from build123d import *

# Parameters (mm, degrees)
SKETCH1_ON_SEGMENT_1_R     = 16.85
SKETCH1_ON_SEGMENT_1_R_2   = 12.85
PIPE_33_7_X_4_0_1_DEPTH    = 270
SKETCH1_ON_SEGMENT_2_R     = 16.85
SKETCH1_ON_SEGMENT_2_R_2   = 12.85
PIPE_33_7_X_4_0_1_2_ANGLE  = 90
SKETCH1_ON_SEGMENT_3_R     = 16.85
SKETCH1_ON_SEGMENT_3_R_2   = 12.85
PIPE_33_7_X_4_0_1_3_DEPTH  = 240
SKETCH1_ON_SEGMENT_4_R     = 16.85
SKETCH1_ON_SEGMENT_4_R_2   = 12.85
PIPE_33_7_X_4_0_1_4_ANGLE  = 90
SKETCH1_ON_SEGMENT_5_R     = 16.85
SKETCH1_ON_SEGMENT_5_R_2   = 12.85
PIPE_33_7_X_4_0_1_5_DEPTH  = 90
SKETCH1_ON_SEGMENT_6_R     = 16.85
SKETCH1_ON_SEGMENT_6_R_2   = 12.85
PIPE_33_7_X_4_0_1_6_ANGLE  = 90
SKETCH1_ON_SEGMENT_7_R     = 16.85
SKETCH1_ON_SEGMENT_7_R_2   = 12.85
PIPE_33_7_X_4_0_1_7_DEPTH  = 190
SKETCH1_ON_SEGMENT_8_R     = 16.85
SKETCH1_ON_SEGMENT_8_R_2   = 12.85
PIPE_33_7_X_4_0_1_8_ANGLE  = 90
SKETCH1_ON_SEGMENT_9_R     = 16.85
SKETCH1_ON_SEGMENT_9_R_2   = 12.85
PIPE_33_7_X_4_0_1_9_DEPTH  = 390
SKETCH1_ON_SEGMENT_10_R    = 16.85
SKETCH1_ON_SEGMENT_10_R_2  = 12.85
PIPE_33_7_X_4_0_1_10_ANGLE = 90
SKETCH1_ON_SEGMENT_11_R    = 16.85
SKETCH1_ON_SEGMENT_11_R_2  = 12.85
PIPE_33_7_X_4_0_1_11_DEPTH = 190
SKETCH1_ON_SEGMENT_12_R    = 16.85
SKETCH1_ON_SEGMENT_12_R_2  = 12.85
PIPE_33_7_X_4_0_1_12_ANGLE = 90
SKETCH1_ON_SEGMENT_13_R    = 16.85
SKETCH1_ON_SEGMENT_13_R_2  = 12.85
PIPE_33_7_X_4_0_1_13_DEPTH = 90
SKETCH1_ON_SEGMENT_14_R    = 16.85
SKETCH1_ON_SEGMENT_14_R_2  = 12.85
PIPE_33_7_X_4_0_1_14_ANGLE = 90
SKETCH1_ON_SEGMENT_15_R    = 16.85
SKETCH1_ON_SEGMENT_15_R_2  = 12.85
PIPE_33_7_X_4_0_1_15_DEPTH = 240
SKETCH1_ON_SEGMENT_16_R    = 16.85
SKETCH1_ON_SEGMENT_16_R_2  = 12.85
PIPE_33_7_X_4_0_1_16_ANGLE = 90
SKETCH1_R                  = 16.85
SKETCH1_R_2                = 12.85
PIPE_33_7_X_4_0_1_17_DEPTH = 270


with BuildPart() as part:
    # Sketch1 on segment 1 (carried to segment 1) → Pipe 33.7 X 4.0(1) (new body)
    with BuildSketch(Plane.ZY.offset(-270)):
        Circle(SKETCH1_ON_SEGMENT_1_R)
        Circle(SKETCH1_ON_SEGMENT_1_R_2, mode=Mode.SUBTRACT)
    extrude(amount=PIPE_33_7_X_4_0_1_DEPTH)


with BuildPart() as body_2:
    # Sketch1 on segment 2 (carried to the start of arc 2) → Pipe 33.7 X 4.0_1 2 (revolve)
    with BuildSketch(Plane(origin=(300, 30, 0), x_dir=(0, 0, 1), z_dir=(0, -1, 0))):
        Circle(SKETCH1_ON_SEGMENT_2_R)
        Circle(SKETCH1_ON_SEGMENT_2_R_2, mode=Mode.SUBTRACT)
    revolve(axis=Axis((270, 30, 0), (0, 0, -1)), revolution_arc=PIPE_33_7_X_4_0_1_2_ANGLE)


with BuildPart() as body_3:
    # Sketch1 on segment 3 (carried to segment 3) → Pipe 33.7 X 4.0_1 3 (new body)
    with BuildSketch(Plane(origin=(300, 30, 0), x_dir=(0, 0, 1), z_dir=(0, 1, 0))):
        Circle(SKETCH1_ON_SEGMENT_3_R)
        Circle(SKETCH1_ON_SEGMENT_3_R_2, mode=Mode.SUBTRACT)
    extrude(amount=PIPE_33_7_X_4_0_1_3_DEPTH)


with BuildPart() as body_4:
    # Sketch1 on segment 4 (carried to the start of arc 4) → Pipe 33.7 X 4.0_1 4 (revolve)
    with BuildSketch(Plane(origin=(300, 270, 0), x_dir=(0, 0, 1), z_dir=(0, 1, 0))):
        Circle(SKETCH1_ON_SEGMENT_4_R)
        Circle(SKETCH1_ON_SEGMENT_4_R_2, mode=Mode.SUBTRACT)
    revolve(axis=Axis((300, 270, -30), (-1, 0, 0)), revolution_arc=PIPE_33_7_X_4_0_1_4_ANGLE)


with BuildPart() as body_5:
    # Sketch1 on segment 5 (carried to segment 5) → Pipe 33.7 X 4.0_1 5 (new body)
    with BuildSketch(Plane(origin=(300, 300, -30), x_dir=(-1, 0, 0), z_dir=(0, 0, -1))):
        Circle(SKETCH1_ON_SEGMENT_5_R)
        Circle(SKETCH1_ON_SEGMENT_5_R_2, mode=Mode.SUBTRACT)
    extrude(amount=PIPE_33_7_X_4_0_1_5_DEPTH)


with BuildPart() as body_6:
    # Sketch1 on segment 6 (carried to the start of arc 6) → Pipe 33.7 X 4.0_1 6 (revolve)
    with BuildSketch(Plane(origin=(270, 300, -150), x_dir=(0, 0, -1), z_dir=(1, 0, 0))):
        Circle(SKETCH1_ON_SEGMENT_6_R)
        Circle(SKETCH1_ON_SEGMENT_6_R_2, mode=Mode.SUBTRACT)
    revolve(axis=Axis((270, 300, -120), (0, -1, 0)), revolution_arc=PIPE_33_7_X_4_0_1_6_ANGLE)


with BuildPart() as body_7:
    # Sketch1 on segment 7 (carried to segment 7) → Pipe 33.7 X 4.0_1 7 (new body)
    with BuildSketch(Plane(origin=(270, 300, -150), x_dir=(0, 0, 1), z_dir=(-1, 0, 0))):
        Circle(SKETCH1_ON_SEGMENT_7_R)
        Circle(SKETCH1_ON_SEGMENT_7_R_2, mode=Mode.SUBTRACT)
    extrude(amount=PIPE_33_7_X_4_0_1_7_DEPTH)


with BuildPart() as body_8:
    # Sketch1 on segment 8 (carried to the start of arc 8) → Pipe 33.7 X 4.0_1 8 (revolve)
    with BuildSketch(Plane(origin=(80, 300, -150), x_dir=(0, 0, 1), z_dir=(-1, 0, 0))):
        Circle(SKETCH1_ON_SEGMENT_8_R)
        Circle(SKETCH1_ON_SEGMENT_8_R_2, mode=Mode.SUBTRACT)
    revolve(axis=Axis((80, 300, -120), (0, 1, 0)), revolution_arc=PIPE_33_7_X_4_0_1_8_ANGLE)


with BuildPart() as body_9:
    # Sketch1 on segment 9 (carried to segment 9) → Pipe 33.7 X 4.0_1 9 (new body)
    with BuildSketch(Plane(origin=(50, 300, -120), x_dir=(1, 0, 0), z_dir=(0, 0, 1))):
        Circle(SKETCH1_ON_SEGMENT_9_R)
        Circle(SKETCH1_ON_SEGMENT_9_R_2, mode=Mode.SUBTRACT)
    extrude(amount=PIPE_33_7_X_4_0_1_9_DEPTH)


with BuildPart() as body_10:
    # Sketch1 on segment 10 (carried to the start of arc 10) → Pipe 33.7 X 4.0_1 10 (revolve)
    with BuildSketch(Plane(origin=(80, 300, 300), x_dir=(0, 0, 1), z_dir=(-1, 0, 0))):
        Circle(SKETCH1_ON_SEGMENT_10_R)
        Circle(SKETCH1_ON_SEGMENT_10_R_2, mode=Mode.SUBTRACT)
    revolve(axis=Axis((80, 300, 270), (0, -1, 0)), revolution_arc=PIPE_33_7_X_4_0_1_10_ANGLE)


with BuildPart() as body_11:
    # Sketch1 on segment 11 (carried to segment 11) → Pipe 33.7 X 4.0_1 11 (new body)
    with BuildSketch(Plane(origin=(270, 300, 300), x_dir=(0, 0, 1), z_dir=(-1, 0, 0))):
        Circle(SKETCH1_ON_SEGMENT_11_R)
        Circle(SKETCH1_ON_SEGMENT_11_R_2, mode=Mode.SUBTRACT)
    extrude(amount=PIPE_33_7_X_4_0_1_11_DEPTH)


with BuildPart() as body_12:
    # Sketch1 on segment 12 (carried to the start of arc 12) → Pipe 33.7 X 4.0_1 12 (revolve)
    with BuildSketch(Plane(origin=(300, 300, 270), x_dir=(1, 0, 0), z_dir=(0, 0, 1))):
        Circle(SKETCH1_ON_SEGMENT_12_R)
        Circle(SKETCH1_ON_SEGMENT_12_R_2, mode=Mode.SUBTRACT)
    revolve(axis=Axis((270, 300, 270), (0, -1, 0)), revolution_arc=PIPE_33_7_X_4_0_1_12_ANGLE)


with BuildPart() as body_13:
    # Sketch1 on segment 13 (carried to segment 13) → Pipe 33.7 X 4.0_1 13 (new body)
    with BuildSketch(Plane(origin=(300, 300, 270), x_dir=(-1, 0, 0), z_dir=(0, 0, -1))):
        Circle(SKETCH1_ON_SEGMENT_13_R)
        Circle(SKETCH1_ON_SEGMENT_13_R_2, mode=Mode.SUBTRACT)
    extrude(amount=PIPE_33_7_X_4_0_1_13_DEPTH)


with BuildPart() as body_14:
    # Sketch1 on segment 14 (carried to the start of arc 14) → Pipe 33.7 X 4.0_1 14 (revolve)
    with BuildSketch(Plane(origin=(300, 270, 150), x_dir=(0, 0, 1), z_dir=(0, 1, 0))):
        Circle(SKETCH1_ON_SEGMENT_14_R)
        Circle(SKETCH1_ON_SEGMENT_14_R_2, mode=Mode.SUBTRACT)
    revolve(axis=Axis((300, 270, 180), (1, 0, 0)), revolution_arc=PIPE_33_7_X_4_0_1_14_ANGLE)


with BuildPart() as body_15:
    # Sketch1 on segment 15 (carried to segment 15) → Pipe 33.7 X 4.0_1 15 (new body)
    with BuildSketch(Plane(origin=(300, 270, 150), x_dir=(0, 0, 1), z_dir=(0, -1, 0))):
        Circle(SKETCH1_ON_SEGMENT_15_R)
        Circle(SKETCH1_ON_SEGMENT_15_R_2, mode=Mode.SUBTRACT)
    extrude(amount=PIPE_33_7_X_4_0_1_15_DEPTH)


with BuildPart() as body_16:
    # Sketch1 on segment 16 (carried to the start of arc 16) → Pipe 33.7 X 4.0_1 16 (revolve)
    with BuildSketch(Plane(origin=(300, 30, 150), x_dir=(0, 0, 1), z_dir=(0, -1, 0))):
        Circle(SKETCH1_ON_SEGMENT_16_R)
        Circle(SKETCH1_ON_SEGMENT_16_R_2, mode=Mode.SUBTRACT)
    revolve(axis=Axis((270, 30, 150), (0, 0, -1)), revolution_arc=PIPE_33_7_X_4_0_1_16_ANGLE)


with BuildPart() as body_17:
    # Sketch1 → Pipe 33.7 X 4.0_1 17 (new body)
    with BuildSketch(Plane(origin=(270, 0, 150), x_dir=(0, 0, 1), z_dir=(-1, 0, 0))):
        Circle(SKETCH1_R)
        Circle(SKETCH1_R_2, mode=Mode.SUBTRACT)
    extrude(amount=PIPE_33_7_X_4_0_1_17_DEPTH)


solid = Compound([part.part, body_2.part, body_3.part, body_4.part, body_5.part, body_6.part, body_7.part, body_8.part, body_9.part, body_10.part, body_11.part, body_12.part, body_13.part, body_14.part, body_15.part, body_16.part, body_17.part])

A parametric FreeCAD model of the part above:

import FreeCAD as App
import Part
import Sketcher

V = App.Vector
Q = App.Units.Quantity

doc = App.newDocument("Part")
params = doc.addObject("Spreadsheet::Sheet", "Params")
for row, (alias, value) in enumerate([
    ("sketch1_diameter", "33.7 mm"),
    ("sketch1_diameter2", "25.7 mm"),
    ("pad1_length", "270 mm"),
    ("sketch2_diameter", "33.7 mm"),
    ("sketch2_diameter2", "25.7 mm"),
    ("sketch2_height", "10 mm"),
    ("revolution_angle", "90 deg"),
    ("sketch3_diameter", "33.7 mm"),
    ("sketch3_diameter2", "25.7 mm"),
    ("pad2_length", "240 mm"),
    ("sketch4_diameter", "33.7 mm"),
    ("sketch4_diameter2", "25.7 mm"),
    ("sketch4_width", "10 mm"),
    ("revolution2_angle", "90 deg"),
    ("sketch5_diameter", "33.7 mm"),
    ("sketch5_diameter2", "25.7 mm"),
    ("pad3_length", "90 mm"),
    ("sketch6_diameter", "33.7 mm"),
    ("sketch6_diameter2", "25.7 mm"),
    ("sketch6_width", "10 mm"),
    ("revolution3_angle", "90 deg"),
    ("sketch7_diameter", "33.7 mm"),
    ("sketch7_diameter2", "25.7 mm"),
    ("pad4_length", "190 mm"),
    ("sketch8_diameter", "33.7 mm"),
    ("sketch8_diameter2", "25.7 mm"),
    ("sketch8_width", "10 mm"),
    ("revolution4_angle", "90 deg"),
    ("sketch9_diameter", "33.7 mm"),
    ("sketch9_diameter2", "25.7 mm"),
    ("pad5_length", "390 mm"),
    ("sketch10_diameter", "33.7 mm"),
    ("sketch10_diameter2", "25.7 mm"),
    ("sketch10_width", "10 mm"),
    ("revolution5_angle", "90 deg"),
    ("sketch11_diameter", "33.7 mm"),
    ("sketch11_diameter2", "25.7 mm"),
    ("pad6_length", "190 mm"),
    ("sketch12_diameter", "33.7 mm"),
    ("sketch12_diameter2", "25.7 mm"),
    ("sketch12_height", "10 mm"),
    ("revolution6_angle", "90 deg"),
    ("sketch13_diameter", "33.7 mm"),
    ("sketch13_diameter2", "25.7 mm"),
    ("pad7_length", "90 mm"),
    ("sketch14_diameter", "33.7 mm"),
    ("sketch14_diameter2", "25.7 mm"),
    ("sketch14_width", "10 mm"),
    ("revolution7_angle", "90 deg"),
    ("sketch15_diameter", "33.7 mm"),
    ("sketch15_diameter2", "25.7 mm"),
    ("pad8_length", "240 mm"),
    ("sketch16_diameter", "33.7 mm"),
    ("sketch16_diameter2", "25.7 mm"),
    ("sketch16_height", "10 mm"),
    ("revolution8_angle", "90 deg"),
    ("sketch17_diameter", "33.7 mm"),
    ("sketch17_diameter2", "25.7 mm"),
    ("pad9_length", "270 mm"),
], start=1):
    params.set(f"A{row}", alias)
    params.set(f"B{row}", "=" + value)
    params.setAlias(f"B{row}", alias)

body = doc.addObject("PartDesign::Body", "Body")

# Sketch on YZ plane
sketch1 = body.newObject("Sketcher::SketchObject", "Sketch")
sketch1.AttachmentSupport = (doc.getObject("YZ_Plane"), [""])
sketch1.MapMode = "FlatFace"
sketch1.AttachmentOffset = App.Placement(V(0, 0, 270), App.Rotation())
sketch1.addGeometry(Part.Circle(V(0, 0, 0), V(0, 0, 1), 16.85), False)
sketch1.addGeometry(Part.Circle(V(0, 0, 0), V(0, 0, 1), 12.85), False)
sketch1.addConstraint(Sketcher.Constraint("Coincident", 0, 3, -1, 1))
sketch1.addConstraint(Sketcher.Constraint("Coincident", 1, 3, -1, 1))
sketch1.addConstraint(Sketcher.Constraint("Diameter", 0, Q("33.7 mm")))
sketch1.addConstraint(Sketcher.Constraint("Diameter", 1, Q("25.7 mm")))
sketch1.setExpression("Constraints[2]", "Params.sketch1_diameter")
sketch1.setExpression("Constraints[3]", "Params.sketch1_diameter2")
pad1 = body.newObject("PartDesign::Pad", "Pad")
pad1.Profile = sketch1
pad1.setExpression("Length", "Params.pad1_length")
pad1.Reversed = True
body2 = doc.addObject("PartDesign::Body", "Body001")

# Sketch on XZ plane
sketch2 = body2.newObject("Sketcher::SketchObject", "Sketch001")
sketch2.AttachmentSupport = (doc.getObject("XZ_Plane001"), [""])
sketch2.MapMode = "FlatFace"
sketch2.AttachmentOffset = App.Placement(V(0, 0, -30), App.Rotation())
sketch2.addGeometry(Part.Circle(V(300, 0, 0), V(0, 0, 1), 16.85), False)
sketch2.addGeometry(Part.Circle(V(300, 0, 0), V(0, 0, 1), 12.85), False)
sketch2.addGeometry(Part.LineSegment(V(270, 0, 0), V(270, -10, 0)), True)  # axis
sketch2.addConstraint(Sketcher.Constraint("Vertical", 2))
sketch2.addConstraint(Sketcher.Constraint("Coincident", 1, 3, 0, 3))
sketch2.addConstraint(Sketcher.Constraint("PointOnObject", 0, 3, -1))
sketch2.addConstraint(Sketcher.Constraint("PointOnObject", 2, 1, -1))
sketch2.addConstraint(Sketcher.Constraint("Diameter", 0, Q("33.7 mm")))
sketch2.addConstraint(Sketcher.Constraint("Diameter", 1, Q("25.7 mm")))
sketch2.addConstraint(Sketcher.Constraint("DistanceY", 2, 2, 2, 1, Q("10 mm")))
sketch2.addConstraint(Sketcher.Constraint("DistanceX", -1, 1, 0, 3, Q("300 mm")))
sketch2.addConstraint(Sketcher.Constraint("DistanceX", -1, 1, 2, 1, Q("270 mm")))
sketch2.setExpression("Constraints[4]", "Params.sketch2_diameter")
sketch2.setExpression("Constraints[5]", "Params.sketch2_diameter2")
sketch2.setExpression("Constraints[6]", "Params.sketch2_height")
revolution = body2.newObject("PartDesign::Revolution", "Revolution")
revolution.Profile = sketch2
revolution.ReferenceAxis = (sketch2, ["Axis0"])
revolution.setExpression("Angle", "Params.revolution_angle")
body3 = doc.addObject("PartDesign::Body", "Body002")

# Sketch on XZ plane
sketch3 = body3.newObject("Sketcher::SketchObject", "Sketch002")
sketch3.AttachmentSupport = (doc.getObject("XZ_Plane002"), [""])
sketch3.MapMode = "FlatFace"
sketch3.AttachmentOffset = App.Placement(V(0, 0, -30), App.Rotation())
sketch3.addGeometry(Part.Circle(V(300, 0, 0), V(0, 0, 1), 16.85), False)
sketch3.addGeometry(Part.Circle(V(300, 0, 0), V(0, 0, 1), 12.85), False)
sketch3.addConstraint(Sketcher.Constraint("Coincident", 1, 3, 0, 3))
sketch3.addConstraint(Sketcher.Constraint("PointOnObject", 0, 3, -1))
sketch3.addConstraint(Sketcher.Constraint("Diameter", 0, Q("33.7 mm")))
sketch3.addConstraint(Sketcher.Constraint("Diameter", 1, Q("25.7 mm")))
sketch3.addConstraint(Sketcher.Constraint("DistanceX", -1, 1, 0, 3, Q("300 mm")))
sketch3.setExpression("Constraints[2]", "Params.sketch3_diameter")
sketch3.setExpression("Constraints[3]", "Params.sketch3_diameter2")
pad2 = body3.newObject("PartDesign::Pad", "Pad001")
pad2.Profile = sketch3
pad2.setExpression("Length", "Params.pad2_length")
pad2.Reversed = True
body4 = doc.addObject("PartDesign::Body", "Body003")

# Sketch on XZ plane
sketch4 = body4.newObject("Sketcher::SketchObject", "Sketch003")
sketch4.AttachmentSupport = (doc.getObject("XZ_Plane003"), [""])
sketch4.MapMode = "FlatFace"
sketch4.AttachmentOffset = App.Placement(V(0, 0, -270), App.Rotation())
sketch4.addGeometry(Part.Circle(V(300, 0, 0), V(0, 0, 1), 16.85), False)
sketch4.addGeometry(Part.Circle(V(300, 0, 0), V(0, 0, 1), 12.85), False)
sketch4.addGeometry(Part.LineSegment(V(300, -30, 0), V(290, -30, 0)), True)  # axis
sketch4.addConstraint(Sketcher.Constraint("Horizontal", 2))
sketch4.addConstraint(Sketcher.Constraint("Coincident", 1, 3, 0, 3))
sketch4.addConstraint(Sketcher.Constraint("PointOnObject", 0, 3, -1))
sketch4.addConstraint(Sketcher.Constraint("Vertical", 1, 3, 2, 1))
sketch4.addConstraint(Sketcher.Constraint("Diameter", 0, Q("33.7 mm")))
sketch4.addConstraint(Sketcher.Constraint("Diameter", 1, Q("25.7 mm")))
sketch4.addConstraint(Sketcher.Constraint("DistanceX", 2, 2, 2, 1, Q("10 mm")))
sketch4.addConstraint(Sketcher.Constraint("DistanceX", -1, 1, 0, 3, Q("300 mm")))
sketch4.addConstraint(Sketcher.Constraint("DistanceY", 2, 1, -1, 1, Q("30 mm")))
sketch4.setExpression("Constraints[4]", "Params.sketch4_diameter")
sketch4.setExpression("Constraints[5]", "Params.sketch4_diameter2")
sketch4.setExpression("Constraints[6]", "Params.sketch4_width")
revolution2 = body4.newObject("PartDesign::Revolution", "Revolution001")
revolution2.Profile = sketch4
revolution2.ReferenceAxis = (sketch4, ["Axis0"])
revolution2.setExpression("Angle", "Params.revolution2_angle")
body5 = doc.addObject("PartDesign::Body", "Body004")

# Sketch on XY plane
sketch5 = body5.newObject("Sketcher::SketchObject", "Sketch004")
sketch5.AttachmentSupport = (doc.getObject("XY_Plane004"), [""])
sketch5.MapMode = "FlatFace"
sketch5.AttachmentOffset = App.Placement(V(0, 0, -30), App.Rotation())
sketch5.addGeometry(Part.Circle(V(300, 300, 0), V(0, 0, 1), 16.85), False)
sketch5.addGeometry(Part.Circle(V(300, 300, 0), V(0, 0, 1), 12.85), False)
sketch5.addConstraint(Sketcher.Constraint("Coincident", 1, 3, 0, 3))
sketch5.addConstraint(Sketcher.Constraint("Diameter", 0, Q("33.7 mm")))
sketch5.addConstraint(Sketcher.Constraint("Diameter", 1, Q("25.7 mm")))
sketch5.addConstraint(Sketcher.Constraint("DistanceX", -1, 1, 0, 3, Q("300 mm")))
sketch5.addConstraint(Sketcher.Constraint("DistanceY", -1, 1, 0, 3, Q("300 mm")))
sketch5.setExpression("Constraints[1]", "Params.sketch5_diameter")
sketch5.setExpression("Constraints[2]", "Params.sketch5_diameter2")
pad3 = body5.newObject("PartDesign::Pad", "Pad002")
pad3.Profile = sketch5
pad3.setExpression("Length", "Params.pad3_length")
pad3.Reversed = True
body6 = doc.addObject("PartDesign::Body", "Body005")

# Sketch on YZ plane
sketch6 = body6.newObject("Sketcher::SketchObject", "Sketch005")
sketch6.AttachmentSupport = (doc.getObject("YZ_Plane005"), [""])
sketch6.MapMode = "FlatFace"
sketch6.AttachmentOffset = App.Placement(V(0, 0, 270), App.Rotation())
sketch6.addGeometry(Part.Circle(V(300, -150, 0), V(0, 0, 1), 16.85), False)
sketch6.addGeometry(Part.Circle(V(300, -150, 0), V(0, 0, 1), 12.85), False)
sketch6.addGeometry(Part.LineSegment(V(300, -120, 0), V(290, -120, 0)), True)  # axis
sketch6.addConstraint(Sketcher.Constraint("Horizontal", 2))
sketch6.addConstraint(Sketcher.Constraint("Coincident", 1, 3, 0, 3))
sketch6.addConstraint(Sketcher.Constraint("Vertical", 1, 3, 2, 1))
sketch6.addConstraint(Sketcher.Constraint("Diameter", 0, Q("33.7 mm")))
sketch6.addConstraint(Sketcher.Constraint("Diameter", 1, Q("25.7 mm")))
sketch6.addConstraint(Sketcher.Constraint("DistanceX", 2, 2, 2, 1, Q("10 mm")))
sketch6.addConstraint(Sketcher.Constraint("DistanceX", -1, 1, 0, 3, Q("300 mm")))
sketch6.addConstraint(Sketcher.Constraint("DistanceY", 0, 3, -1, 1, Q("150 mm")))
sketch6.addConstraint(Sketcher.Constraint("DistanceY", 2, 1, -1, 1, Q("120 mm")))
sketch6.setExpression("Constraints[3]", "Params.sketch6_diameter")
sketch6.setExpression("Constraints[4]", "Params.sketch6_diameter2")
sketch6.setExpression("Constraints[5]", "Params.sketch6_width")
revolution3 = body6.newObject("PartDesign::Revolution", "Revolution002")
revolution3.Profile = sketch6
revolution3.ReferenceAxis = (sketch6, ["Axis0"])
revolution3.setExpression("Angle", "Params.revolution3_angle")
body7 = doc.addObject("PartDesign::Body", "Body006")

# Sketch on YZ plane
sketch7 = body7.newObject("Sketcher::SketchObject", "Sketch006")
sketch7.AttachmentSupport = (doc.getObject("YZ_Plane006"), [""])
sketch7.MapMode = "FlatFace"
sketch7.AttachmentOffset = App.Placement(V(0, 0, 270), App.Rotation())
sketch7.addGeometry(Part.Circle(V(300, -150, 0), V(0, 0, 1), 16.85), False)
sketch7.addGeometry(Part.Circle(V(300, -150, 0), V(0, 0, 1), 12.85), False)
sketch7.addConstraint(Sketcher.Constraint("Coincident", 1, 3, 0, 3))
sketch7.addConstraint(Sketcher.Constraint("Diameter", 0, Q("33.7 mm")))
sketch7.addConstraint(Sketcher.Constraint("Diameter", 1, Q("25.7 mm")))
sketch7.addConstraint(Sketcher.Constraint("DistanceX", -1, 1, 0, 3, Q("300 mm")))
sketch7.addConstraint(Sketcher.Constraint("DistanceY", 0, 3, -1, 1, Q("150 mm")))
sketch7.setExpression("Constraints[1]", "Params.sketch7_diameter")
sketch7.setExpression("Constraints[2]", "Params.sketch7_diameter2")
pad4 = body7.newObject("PartDesign::Pad", "Pad003")
pad4.Profile = sketch7
pad4.setExpression("Length", "Params.pad4_length")
pad4.Reversed = True
body8 = doc.addObject("PartDesign::Body", "Body007")

# Sketch on YZ plane
sketch8 = body8.newObject("Sketcher::SketchObject", "Sketch007")
sketch8.AttachmentSupport = (doc.getObject("YZ_Plane007"), [""])
sketch8.MapMode = "FlatFace"
sketch8.AttachmentOffset = App.Placement(V(0, 0, 80), App.Rotation())
sketch8.addGeometry(Part.Circle(V(300, -150, 0), V(0, 0, 1), 16.85), False)
sketch8.addGeometry(Part.Circle(V(300, -150, 0), V(0, 0, 1), 12.85), False)
sketch8.addGeometry(Part.LineSegment(V(300, -120, 0), V(310, -120, 0)), True)  # axis
sketch8.addConstraint(Sketcher.Constraint("Horizontal", 2))
sketch8.addConstraint(Sketcher.Constraint("Coincident", 1, 3, 0, 3))
sketch8.addConstraint(Sketcher.Constraint("Vertical", 1, 3, 2, 1))
sketch8.addConstraint(Sketcher.Constraint("Diameter", 0, Q("33.7 mm")))
sketch8.addConstraint(Sketcher.Constraint("Diameter", 1, Q("25.7 mm")))
sketch8.addConstraint(Sketcher.Constraint("DistanceX", 2, 1, 2, 2, Q("10 mm")))
sketch8.addConstraint(Sketcher.Constraint("DistanceX", -1, 1, 0, 3, Q("300 mm")))
sketch8.addConstraint(Sketcher.Constraint("DistanceY", 0, 3, -1, 1, Q("150 mm")))
sketch8.addConstraint(Sketcher.Constraint("DistanceY", 2, 1, -1, 1, Q("120 mm")))
sketch8.setExpression("Constraints[3]", "Params.sketch8_diameter")
sketch8.setExpression("Constraints[4]", "Params.sketch8_diameter2")
sketch8.setExpression("Constraints[5]", "Params.sketch8_width")
revolution4 = body8.newObject("PartDesign::Revolution", "Revolution003")
revolution4.Profile = sketch8
revolution4.ReferenceAxis = (sketch8, ["Axis0"])
revolution4.setExpression("Angle", "Params.revolution4_angle")
body9 = doc.addObject("PartDesign::Body", "Body008")

# Sketch on XY plane
sketch9 = body9.newObject("Sketcher::SketchObject", "Sketch008")
sketch9.AttachmentSupport = (doc.getObject("XY_Plane008"), [""])
sketch9.MapMode = "FlatFace"
sketch9.AttachmentOffset = App.Placement(V(0, 0, -120), App.Rotation())
sketch9.addGeometry(Part.Circle(V(50, 300, 0), V(0, 0, 1), 16.85), False)
sketch9.addGeometry(Part.Circle(V(50, 300, 0), V(0, 0, 1), 12.85), False)
sketch9.addConstraint(Sketcher.Constraint("Coincident", 1, 3, 0, 3))
sketch9.addConstraint(Sketcher.Constraint("Diameter", 0, Q("33.7 mm")))
sketch9.addConstraint(Sketcher.Constraint("Diameter", 1, Q("25.7 mm")))
sketch9.addConstraint(Sketcher.Constraint("DistanceX", -1, 1, 0, 3, Q("50 mm")))
sketch9.addConstraint(Sketcher.Constraint("DistanceY", -1, 1, 0, 3, Q("300 mm")))
sketch9.setExpression("Constraints[1]", "Params.sketch9_diameter")
sketch9.setExpression("Constraints[2]", "Params.sketch9_diameter2")
pad5 = body9.newObject("PartDesign::Pad", "Pad004")
pad5.Profile = sketch9
pad5.setExpression("Length", "Params.pad5_length")
body10 = doc.addObject("PartDesign::Body", "Body009")

# Sketch on YZ plane
sketch10 = body10.newObject("Sketcher::SketchObject", "Sketch009")
sketch10.AttachmentSupport = (doc.getObject("YZ_Plane009"), [""])
sketch10.MapMode = "FlatFace"
sketch10.AttachmentOffset = App.Placement(V(0, 0, 80), App.Rotation())
sketch10.addGeometry(Part.Circle(V(300, 300, 0), V(0, 0, 1), 16.85), False)
sketch10.addGeometry(Part.Circle(V(300, 300, 0), V(0, 0, 1), 12.85), False)
sketch10.addGeometry(Part.LineSegment(V(300, 270, 0), V(290, 270, 0)), True)  # axis
sketch10.addConstraint(Sketcher.Constraint("Horizontal", 2))
sketch10.addConstraint(Sketcher.Constraint("Coincident", 1, 3, 0, 3))
sketch10.addConstraint(Sketcher.Constraint("Vertical", 1, 3, 2, 1))
sketch10.addConstraint(Sketcher.Constraint("Diameter", 0, Q("33.7 mm")))
sketch10.addConstraint(Sketcher.Constraint("Diameter", 1, Q("25.7 mm")))
sketch10.addConstraint(Sketcher.Constraint("DistanceX", 2, 2, 2, 1, Q("10 mm")))
sketch10.addConstraint(Sketcher.Constraint("DistanceX", -1, 1, 0, 3, Q("300 mm")))
sketch10.addConstraint(Sketcher.Constraint("DistanceY", -1, 1, 0, 3, Q("300 mm")))
sketch10.addConstraint(Sketcher.Constraint("DistanceY", -1, 1, 2, 1, Q("270 mm")))
sketch10.setExpression("Constraints[3]", "Params.sketch10_diameter")
sketch10.setExpression("Constraints[4]", "Params.sketch10_diameter2")
sketch10.setExpression("Constraints[5]", "Params.sketch10_width")
revolution5 = body10.newObject("PartDesign::Revolution", "Revolution004")
revolution5.Profile = sketch10
revolution5.ReferenceAxis = (sketch10, ["Axis0"])
revolution5.setExpression("Angle", "Params.revolution5_angle")
body11 = doc.addObject("PartDesign::Body", "Body010")

# Sketch on YZ plane
sketch11 = body11.newObject("Sketcher::SketchObject", "Sketch010")
sketch11.AttachmentSupport = (doc.getObject("YZ_Plane010"), [""])
sketch11.MapMode = "FlatFace"
sketch11.AttachmentOffset = App.Placement(V(0, 0, 270), App.Rotation())
sketch11.addGeometry(Part.Circle(V(300, 300, 0), V(0, 0, 1), 16.85), False)
sketch11.addGeometry(Part.Circle(V(300, 300, 0), V(0, 0, 1), 12.85), False)
sketch11.addConstraint(Sketcher.Constraint("Coincident", 1, 3, 0, 3))
sketch11.addConstraint(Sketcher.Constraint("Diameter", 0, Q("33.7 mm")))
sketch11.addConstraint(Sketcher.Constraint("Diameter", 1, Q("25.7 mm")))
sketch11.addConstraint(Sketcher.Constraint("DistanceX", -1, 1, 0, 3, Q("300 mm")))
sketch11.addConstraint(Sketcher.Constraint("DistanceY", -1, 1, 0, 3, Q("300 mm")))
sketch11.setExpression("Constraints[1]", "Params.sketch11_diameter")
sketch11.setExpression("Constraints[2]", "Params.sketch11_diameter2")
pad6 = body11.newObject("PartDesign::Pad", "Pad005")
pad6.Profile = sketch11
pad6.setExpression("Length", "Params.pad6_length")
pad6.Reversed = True
body12 = doc.addObject("PartDesign::Body", "Body011")

# Sketch on XY plane
sketch12 = body12.newObject("Sketcher::SketchObject", "Sketch011")
sketch12.AttachmentSupport = (doc.getObject("XY_Plane011"), [""])
sketch12.MapMode = "FlatFace"
sketch12.AttachmentOffset = App.Placement(V(0, 0, 270), App.Rotation())
sketch12.addGeometry(Part.Circle(V(300, 300, 0), V(0, 0, 1), 16.85), False)
sketch12.addGeometry(Part.Circle(V(300, 300, 0), V(0, 0, 1), 12.85), False)
sketch12.addGeometry(Part.LineSegment(V(270, 300, 0), V(270, 290, 0)), True)  # axis
sketch12.addConstraint(Sketcher.Constraint("Vertical", 2))
sketch12.addConstraint(Sketcher.Constraint("Coincident", 1, 3, 0, 3))
sketch12.addConstraint(Sketcher.Constraint("Horizontal", 1, 3, 2, 1))
sketch12.addConstraint(Sketcher.Constraint("Diameter", 0, Q("33.7 mm")))
sketch12.addConstraint(Sketcher.Constraint("Diameter", 1, Q("25.7 mm")))
sketch12.addConstraint(Sketcher.Constraint("DistanceY", 2, 2, 2, 1, Q("10 mm")))
sketch12.addConstraint(Sketcher.Constraint("DistanceX", -1, 1, 0, 3, Q("300 mm")))
sketch12.addConstraint(Sketcher.Constraint("DistanceY", -1, 1, 0, 3, Q("300 mm")))
sketch12.addConstraint(Sketcher.Constraint("DistanceX", -1, 1, 2, 1, Q("270 mm")))
sketch12.setExpression("Constraints[3]", "Params.sketch12_diameter")
sketch12.setExpression("Constraints[4]", "Params.sketch12_diameter2")
sketch12.setExpression("Constraints[5]", "Params.sketch12_height")
revolution6 = body12.newObject("PartDesign::Revolution", "Revolution005")
revolution6.Profile = sketch12
revolution6.ReferenceAxis = (sketch12, ["Axis0"])
revolution6.setExpression("Angle", "Params.revolution6_angle")
body13 = doc.addObject("PartDesign::Body", "Body012")

# Sketch on XY plane
sketch13 = body13.newObject("Sketcher::SketchObject", "Sketch012")
sketch13.AttachmentSupport = (doc.getObject("XY_Plane012"), [""])
sketch13.MapMode = "FlatFace"
sketch13.AttachmentOffset = App.Placement(V(0, 0, 270), App.Rotation())
sketch13.addGeometry(Part.Circle(V(300, 300, 0), V(0, 0, 1), 16.85), False)
sketch13.addGeometry(Part.Circle(V(300, 300, 0), V(0, 0, 1), 12.85), False)
sketch13.addConstraint(Sketcher.Constraint("Coincident", 1, 3, 0, 3))
sketch13.addConstraint(Sketcher.Constraint("Diameter", 0, Q("33.7 mm")))
sketch13.addConstraint(Sketcher.Constraint("Diameter", 1, Q("25.7 mm")))
sketch13.addConstraint(Sketcher.Constraint("DistanceX", -1, 1, 0, 3, Q("300 mm")))
sketch13.addConstraint(Sketcher.Constraint("DistanceY", -1, 1, 0, 3, Q("300 mm")))
sketch13.setExpression("Constraints[1]", "Params.sketch13_diameter")
sketch13.setExpression("Constraints[2]", "Params.sketch13_diameter2")
pad7 = body13.newObject("PartDesign::Pad", "Pad006")
pad7.Profile = sketch13
pad7.setExpression("Length", "Params.pad7_length")
pad7.Reversed = True
body14 = doc.addObject("PartDesign::Body", "Body013")

# Sketch on XZ plane
sketch14 = body14.newObject("Sketcher::SketchObject", "Sketch013")
sketch14.AttachmentSupport = (doc.getObject("XZ_Plane013"), [""])
sketch14.MapMode = "FlatFace"
sketch14.AttachmentOffset = App.Placement(V(0, 0, -270), App.Rotation())
sketch14.addGeometry(Part.Circle(V(300, 150, 0), V(0, 0, 1), 16.85), False)
sketch14.addGeometry(Part.Circle(V(300, 150, 0), V(0, 0, 1), 12.85), False)
sketch14.addGeometry(Part.LineSegment(V(300, 180, 0), V(310, 180, 0)), True)  # axis
sketch14.addConstraint(Sketcher.Constraint("Horizontal", 2))
sketch14.addConstraint(Sketcher.Constraint("Coincident", 1, 3, 0, 3))
sketch14.addConstraint(Sketcher.Constraint("Vertical", 1, 3, 2, 1))
sketch14.addConstraint(Sketcher.Constraint("Diameter", 0, Q("33.7 mm")))
sketch14.addConstraint(Sketcher.Constraint("Diameter", 1, Q("25.7 mm")))
sketch14.addConstraint(Sketcher.Constraint("DistanceX", 2, 1, 2, 2, Q("10 mm")))
sketch14.addConstraint(Sketcher.Constraint("DistanceX", -1, 1, 0, 3, Q("300 mm")))
sketch14.addConstraint(Sketcher.Constraint("DistanceY", -1, 1, 0, 3, Q("150 mm")))
sketch14.addConstraint(Sketcher.Constraint("DistanceY", -1, 1, 2, 1, Q("180 mm")))
sketch14.setExpression("Constraints[3]", "Params.sketch14_diameter")
sketch14.setExpression("Constraints[4]", "Params.sketch14_diameter2")
sketch14.setExpression("Constraints[5]", "Params.sketch14_width")
revolution7 = body14.newObject("PartDesign::Revolution", "Revolution006")
revolution7.Profile = sketch14
revolution7.ReferenceAxis = (sketch14, ["Axis0"])
revolution7.setExpression("Angle", "Params.revolution7_angle")
body15 = doc.addObject("PartDesign::Body", "Body014")

# Sketch on XZ plane
sketch15 = body15.newObject("Sketcher::SketchObject", "Sketch014")
sketch15.AttachmentSupport = (doc.getObject("XZ_Plane014"), [""])
sketch15.MapMode = "FlatFace"
sketch15.AttachmentOffset = App.Placement(V(0, 0, -270), App.Rotation())
sketch15.addGeometry(Part.Circle(V(300, 150, 0), V(0, 0, 1), 16.85), False)
sketch15.addGeometry(Part.Circle(V(300, 150, 0), V(0, 0, 1), 12.85), False)
sketch15.addConstraint(Sketcher.Constraint("Coincident", 1, 3, 0, 3))
sketch15.addConstraint(Sketcher.Constraint("Diameter", 0, Q("33.7 mm")))
sketch15.addConstraint(Sketcher.Constraint("Diameter", 1, Q("25.7 mm")))
sketch15.addConstraint(Sketcher.Constraint("DistanceX", -1, 1, 0, 3, Q("300 mm")))
sketch15.addConstraint(Sketcher.Constraint("DistanceY", -1, 1, 0, 3, Q("150 mm")))
sketch15.setExpression("Constraints[1]", "Params.sketch15_diameter")
sketch15.setExpression("Constraints[2]", "Params.sketch15_diameter2")
pad8 = body15.newObject("PartDesign::Pad", "Pad007")
pad8.Profile = sketch15
pad8.setExpression("Length", "Params.pad8_length")
body16 = doc.addObject("PartDesign::Body", "Body015")

# Sketch on XZ plane
sketch16 = body16.newObject("Sketcher::SketchObject", "Sketch015")
sketch16.AttachmentSupport = (doc.getObject("XZ_Plane015"), [""])
sketch16.MapMode = "FlatFace"
sketch16.AttachmentOffset = App.Placement(V(0, 0, -30), App.Rotation())
sketch16.addGeometry(Part.Circle(V(300, 150, 0), V(0, 0, 1), 16.85), False)
sketch16.addGeometry(Part.Circle(V(300, 150, 0), V(0, 0, 1), 12.85), False)
sketch16.addGeometry(Part.LineSegment(V(270, 150, 0), V(270, 140, 0)), True)  # axis
sketch16.addConstraint(Sketcher.Constraint("Vertical", 2))
sketch16.addConstraint(Sketcher.Constraint("Coincident", 1, 3, 0, 3))
sketch16.addConstraint(Sketcher.Constraint("Horizontal", 1, 3, 2, 1))
sketch16.addConstraint(Sketcher.Constraint("Diameter", 0, Q("33.7 mm")))
sketch16.addConstraint(Sketcher.Constraint("Diameter", 1, Q("25.7 mm")))
sketch16.addConstraint(Sketcher.Constraint("DistanceY", 2, 2, 2, 1, Q("10 mm")))
sketch16.addConstraint(Sketcher.Constraint("DistanceX", -1, 1, 0, 3, Q("300 mm")))
sketch16.addConstraint(Sketcher.Constraint("DistanceY", -1, 1, 0, 3, Q("150 mm")))
sketch16.addConstraint(Sketcher.Constraint("DistanceX", -1, 1, 2, 1, Q("270 mm")))
sketch16.setExpression("Constraints[3]", "Params.sketch16_diameter")
sketch16.setExpression("Constraints[4]", "Params.sketch16_diameter2")
sketch16.setExpression("Constraints[5]", "Params.sketch16_height")
revolution8 = body16.newObject("PartDesign::Revolution", "Revolution007")
revolution8.Profile = sketch16
revolution8.ReferenceAxis = (sketch16, ["Axis0"])
revolution8.setExpression("Angle", "Params.revolution8_angle")
body17 = doc.addObject("PartDesign::Body", "Body016")

# Sketch on YZ plane
sketch17 = body17.newObject("Sketcher::SketchObject", "Sketch016")
sketch17.AttachmentSupport = (doc.getObject("YZ_Plane016"), [""])
sketch17.MapMode = "FlatFace"
sketch17.AttachmentOffset = App.Placement(V(0, 0, 270), App.Rotation())
sketch17.addGeometry(Part.Circle(V(0, 150, 0), V(0, 0, 1), 16.85), False)
sketch17.addGeometry(Part.Circle(V(0, 150, 0), V(0, 0, 1), 12.85), False)
sketch17.addConstraint(Sketcher.Constraint("Coincident", 1, 3, 0, 3))
sketch17.addConstraint(Sketcher.Constraint("PointOnObject", 0, 3, -2))
sketch17.addConstraint(Sketcher.Constraint("Diameter", 0, Q("33.7 mm")))
sketch17.addConstraint(Sketcher.Constraint("Diameter", 1, Q("25.7 mm")))
sketch17.addConstraint(Sketcher.Constraint("DistanceY", -1, 1, 0, 3, Q("150 mm")))
sketch17.setExpression("Constraints[2]", "Params.sketch17_diameter")
sketch17.setExpression("Constraints[3]", "Params.sketch17_diameter2")
pad9 = body17.newObject("PartDesign::Pad", "Pad008")
pad9.Profile = sketch17
pad9.setExpression("Length", "Params.pad9_length")
pad9.Reversed = True

doc.recompute()
